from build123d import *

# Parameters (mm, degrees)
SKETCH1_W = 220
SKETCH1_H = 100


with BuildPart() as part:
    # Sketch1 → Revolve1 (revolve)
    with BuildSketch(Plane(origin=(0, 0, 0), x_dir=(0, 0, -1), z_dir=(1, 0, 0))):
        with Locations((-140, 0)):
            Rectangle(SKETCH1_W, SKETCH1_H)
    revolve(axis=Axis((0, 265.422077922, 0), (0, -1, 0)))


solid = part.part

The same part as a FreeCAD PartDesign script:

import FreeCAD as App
import Part
import Sketcher

doc = App.newDocument("Part")
body = doc.addObject("PartDesign::Body", "Body")

# Sketch on YZ plane
sketch1 = body.newObject("Sketcher::SketchObject", "Sketch")
sketch1.AttachmentSupport = (doc.getObject("YZ_Plane"), [""])
sketch1.MapMode = "FlatFace"
sketch1.addGeometry([
    Part.LineSegment(App.Vector(50, 250, 0), App.Vector(-50, 250, 0)),
    Part.LineSegment(App.Vector(-50, 250, 0), App.Vector(-50, 30, 0)),
    Part.LineSegment(App.Vector(-50, 30, 0), App.Vector(50, 30, 0)),
    Part.LineSegment(App.Vector(50, 30, 0), App.Vector(50, 250, 0)),
], False)
sketch1.addConstraint([
    Sketcher.Constraint("Coincident", 0, 2, 1, 1),
    Sketcher.Constraint("Coincident", 1, 2, 2, 1),
    Sketcher.Constraint("Coincident", 2, 2, 3, 1),
    Sketcher.Constraint("Coincident", 3, 2, 0, 1),
    Sketcher.Constraint("Horizontal", 0),
    Sketcher.Constraint("Vertical", 1),
    Sketcher.Constraint("Horizontal", 2),
    Sketcher.Constraint("Vertical", 3),
    Sketcher.Constraint("DistanceX", 0, 2, 0, 1, 100.0),
    Sketcher.Constraint("DistanceY", 1, 2, 1, 1, 220.0),
    Sketcher.Constraint("DistanceX", 0, 2, -1, 1, 50.0),
    Sketcher.Constraint("DistanceY", -1, 1, 0, 2, 250.0),
])
revolution = body.newObject("PartDesign::Revolution", "Revolution")
revolution.Profile = sketch1
revolution.ReferenceAxis = (sketch1, ["H_Axis"])
revolution.Angle = 360

doc.recompute()
